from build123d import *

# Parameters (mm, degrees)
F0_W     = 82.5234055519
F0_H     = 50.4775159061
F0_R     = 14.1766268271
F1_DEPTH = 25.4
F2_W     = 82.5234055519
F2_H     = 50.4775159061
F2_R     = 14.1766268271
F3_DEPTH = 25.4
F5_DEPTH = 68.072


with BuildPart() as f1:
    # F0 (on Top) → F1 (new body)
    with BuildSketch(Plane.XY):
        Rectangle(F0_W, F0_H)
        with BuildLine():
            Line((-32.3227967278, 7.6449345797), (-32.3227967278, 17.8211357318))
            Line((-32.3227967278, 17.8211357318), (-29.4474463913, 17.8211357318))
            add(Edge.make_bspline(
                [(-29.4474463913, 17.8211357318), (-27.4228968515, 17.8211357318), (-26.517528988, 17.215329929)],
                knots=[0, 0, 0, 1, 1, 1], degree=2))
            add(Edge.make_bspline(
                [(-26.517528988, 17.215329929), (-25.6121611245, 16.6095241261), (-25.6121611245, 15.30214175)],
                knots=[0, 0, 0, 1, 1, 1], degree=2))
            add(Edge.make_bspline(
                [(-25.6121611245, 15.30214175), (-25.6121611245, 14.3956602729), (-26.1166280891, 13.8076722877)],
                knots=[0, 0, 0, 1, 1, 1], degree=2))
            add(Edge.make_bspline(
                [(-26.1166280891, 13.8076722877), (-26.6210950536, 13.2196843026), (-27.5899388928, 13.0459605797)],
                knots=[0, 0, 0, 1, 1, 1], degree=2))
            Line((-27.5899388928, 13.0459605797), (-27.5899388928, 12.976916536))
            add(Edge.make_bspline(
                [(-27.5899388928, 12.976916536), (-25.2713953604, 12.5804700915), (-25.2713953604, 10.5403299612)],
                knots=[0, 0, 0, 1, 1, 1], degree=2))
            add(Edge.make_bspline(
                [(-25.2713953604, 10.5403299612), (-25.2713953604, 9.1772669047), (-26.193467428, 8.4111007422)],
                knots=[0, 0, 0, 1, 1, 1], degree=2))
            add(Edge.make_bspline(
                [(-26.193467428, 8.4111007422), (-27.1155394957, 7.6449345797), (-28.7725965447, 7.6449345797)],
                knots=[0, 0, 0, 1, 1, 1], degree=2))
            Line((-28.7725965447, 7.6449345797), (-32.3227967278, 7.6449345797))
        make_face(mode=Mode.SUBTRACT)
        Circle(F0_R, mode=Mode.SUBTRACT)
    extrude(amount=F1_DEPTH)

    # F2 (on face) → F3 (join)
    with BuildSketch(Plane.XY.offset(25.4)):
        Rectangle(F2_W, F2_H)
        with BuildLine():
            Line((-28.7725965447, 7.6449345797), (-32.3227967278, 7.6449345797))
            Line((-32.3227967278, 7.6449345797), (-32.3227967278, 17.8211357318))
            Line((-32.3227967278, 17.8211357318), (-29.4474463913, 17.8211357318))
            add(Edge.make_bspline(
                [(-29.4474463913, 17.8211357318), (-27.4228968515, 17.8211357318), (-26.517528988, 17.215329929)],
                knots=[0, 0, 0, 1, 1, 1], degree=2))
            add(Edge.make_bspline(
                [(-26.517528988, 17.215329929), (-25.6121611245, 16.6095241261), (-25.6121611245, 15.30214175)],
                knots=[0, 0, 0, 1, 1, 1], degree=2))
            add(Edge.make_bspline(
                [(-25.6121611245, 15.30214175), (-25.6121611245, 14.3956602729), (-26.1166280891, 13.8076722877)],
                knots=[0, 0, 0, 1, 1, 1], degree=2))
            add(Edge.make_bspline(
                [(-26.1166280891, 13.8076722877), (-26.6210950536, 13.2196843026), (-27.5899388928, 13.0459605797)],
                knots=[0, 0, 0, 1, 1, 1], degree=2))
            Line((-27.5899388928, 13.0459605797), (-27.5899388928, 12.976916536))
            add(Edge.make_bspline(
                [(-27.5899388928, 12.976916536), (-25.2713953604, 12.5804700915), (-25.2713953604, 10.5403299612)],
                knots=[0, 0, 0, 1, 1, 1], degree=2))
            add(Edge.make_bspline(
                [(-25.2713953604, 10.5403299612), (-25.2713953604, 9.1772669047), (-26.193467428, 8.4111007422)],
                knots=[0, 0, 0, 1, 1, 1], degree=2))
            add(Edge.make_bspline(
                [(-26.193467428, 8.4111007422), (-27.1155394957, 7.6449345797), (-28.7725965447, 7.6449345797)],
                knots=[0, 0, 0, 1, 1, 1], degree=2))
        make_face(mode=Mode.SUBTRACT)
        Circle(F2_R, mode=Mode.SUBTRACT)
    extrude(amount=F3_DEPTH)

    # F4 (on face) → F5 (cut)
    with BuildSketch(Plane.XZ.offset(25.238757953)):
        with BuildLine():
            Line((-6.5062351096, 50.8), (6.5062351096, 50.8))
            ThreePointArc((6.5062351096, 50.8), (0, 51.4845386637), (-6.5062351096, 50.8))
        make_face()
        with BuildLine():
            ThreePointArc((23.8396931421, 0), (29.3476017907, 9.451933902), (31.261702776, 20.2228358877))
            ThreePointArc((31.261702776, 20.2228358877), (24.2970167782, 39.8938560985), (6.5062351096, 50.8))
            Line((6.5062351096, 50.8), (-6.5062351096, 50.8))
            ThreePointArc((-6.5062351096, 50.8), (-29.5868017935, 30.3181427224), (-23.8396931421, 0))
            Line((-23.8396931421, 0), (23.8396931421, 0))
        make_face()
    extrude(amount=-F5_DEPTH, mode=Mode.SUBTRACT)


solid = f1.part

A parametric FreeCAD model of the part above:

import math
import FreeCAD as App
import Part
import Sketcher
Q = App.Units.Quantity

doc = App.newDocument("Part")
params = doc.addObject("Spreadsheet::Sheet", "Params")
for row, (alias, value) in enumerate([
    ("pad1_length", "1 in"),
    ("pad2_length", "1 in"),
    ("pocket1_length", "2.68 in"),
], start=1):
    params.set(f"A{row}", alias)
    params.set(f"B{row}", "=" + value)
    params.setAlias(f"B{row}", alias)

body = doc.addObject("PartDesign::Body", "Body")
body.AllowCompound = True

sketch1 = body.newObject("Sketcher::SketchObject", "Sketch")
sketch1.AttachmentSupport = (doc.getObject("XY_Plane"), [""])
sketch1.MapMode = "FlatFace"
sketch1.addGeometry(Part.LineSegment(App.Vector(-41.261703, 25.238758, 0), App.Vector(-41.261703, -25.238758, 0)), False)
sketch1.addGeometry(Part.LineSegment(App.Vector(-41.261703, -25.238758, 0), App.Vector(41.261703, -25.238758, 0)), False)
sketch1.addGeometry(Part.LineSegment(App.Vector(41.261703, -25.238758, 0), App.Vector(41.261703, 25.238758, 0)), False)
sketch1.addGeometry(Part.LineSegment(App.Vector(41.261703, 25.238758, 0), App.Vector(-41.261703, 25.238758, 0)), False)
sketch1.addGeometry(Part.Circle(App.Vector(0, 0, 0), App.Vector(0, 0, 1), 14.176627), False)
sketch1.addGeometry(Part.LineSegment(App.Vector(-28.772597, 7.644935, 0), App.Vector(-32.322797, 7.644935, 0)), False)
sketch1.addGeometry(Part.LineSegment(App.Vector(-32.322797, 7.644935, 0), App.Vector(-32.322797, 17.821136, 0)), False)
sketch1.addGeometry(Part.LineSegment(App.Vector(-32.322797, 17.821136, 0), App.Vector(-29.447446, 17.821136, 0)), False)
sketch1.addGeometry(Part.BSplineCurve([App.Vector(-29.447446, 17.821136, 0), App.Vector(-27.422897, 17.821136, 0), App.Vector(-26.517529, 17.21533, 0)], [3, 3], [0, 1], False, 2, [1, 1, 1], False), False)
sketch1.addGeometry(Part.BSplineCurve([App.Vector(-26.517529, 17.21533, 0), App.Vector(-25.612161, 16.609524, 0), App.Vector(-25.612161, 14.39566, 0), App.Vector(-26.116628, 13.807672, 0)], [3, 1, 3], [0, 1, 1.693356048], False, 2, [1, 1, 1, 1], False), False)
sketch1.addGeometry(Part.BSplineCurve([App.Vector(-26.116628, 13.807672, 0), App.Vector(-26.621095, 13.219684, 0), App.Vector(-27.589939, 13.045961, 0)], [3, 3], [0, 1], False, 2, [1, 1, 1], False), False)
sketch1.addGeometry(Part.LineSegment(App.Vector(-27.589939, 13.045961, 0), App.Vector(-27.589939, 12.976917, 0)), False)
sketch1.addGeometry(Part.BSplineCurve([App.Vector(-27.589939, 12.976917, 0), App.Vector(-25.271395, 12.58047, 0), App.Vector(-25.271395, 9.177267, 0), App.Vector(-26.193467, 8.411101, 0)], [3, 1, 3], [0, 1, 1.668122271], False, 2, [1, 1, 1, 1], False), False)
sketch1.addGeometry(Part.BSplineCurve([App.Vector(-26.193467, 8.411101, 0), App.Vector(-27.115539, 7.644935, 0), App.Vector(-28.772597, 7.644935, 0)], [3, 3], [0, 1], False, 2, [1, 1, 1], False), False)
sketch1.addConstraint(Sketcher.Constraint("Block", 8))
sketch1.addConstraint(Sketcher.Constraint("Block", 9))
sketch1.addConstraint(Sketcher.Constraint("Block", 10))
sketch1.addConstraint(Sketcher.Constraint("Block", 12))
sketch1.addConstraint(Sketcher.Constraint("Block", 13))
sketch1.addConstraint(Sketcher.Constraint("Coincident", 0, 2, 1, 1))
sketch1.addConstraint(Sketcher.Constraint("Coincident", 1, 2, 2, 1))
sketch1.addConstraint(Sketcher.Constraint("Coincident", 2, 2, 3, 1))
sketch1.addConstraint(Sketcher.Constraint("Coincident", 3, 2, 0, 1))
sketch1.addConstraint(Sketcher.Constraint("Coincident", 5, 2, 6, 1))
sketch1.addConstraint(Sketcher.Constraint("Coincident", 6, 2, 7, 1))
sketch1.addConstraint(Sketcher.Constraint("Coincident", 7, 2, 8, 1))
sketch1.addConstraint(Sketcher.Constraint("Coincident", 10, 2, 11, 1))
sketch1.addConstraint(Sketcher.Constraint("Coincident", 11, 2, 12, 1))
sketch1.addConstraint(Sketcher.Constraint("Coincident", 13, 2, 5, 1))
sketch1.addConstraint(Sketcher.Constraint("Vertical", 0))
sketch1.addConstraint(Sketcher.Constraint("Horizontal", 1))
sketch1.addConstraint(Sketcher.Constraint("Vertical", 2))
sketch1.addConstraint(Sketcher.Constraint("Horizontal", 3))
sketch1.addConstraint(Sketcher.Constraint("Horizontal", 5))
sketch1.addConstraint(Sketcher.Constraint("Vertical", 6))
sketch1.addConstraint(Sketcher.Constraint("Horizontal", 7))
sketch1.addConstraint(Sketcher.Constraint("Coincident", 4, 3, -1, 1))
sketch1.addConstraint(Sketcher.Constraint("Symmetric", 0, 2, 2, 2, -1, 1))
sketch1.addConstraint(Sketcher.Constraint("Diameter", 4, Q("28.353254 mm")))
sketch1.addConstraint(Sketcher.Constraint("DistanceX", 5, 2, 5, 1, Q("3.5502 mm")))
sketch1.addConstraint(Sketcher.Constraint("DistanceX", 5, 2, 2, 2, Q("73.5845 mm")))
sketch1.addConstraint(Sketcher.Constraint("DistanceY", 0, 2, 0, 1, Q("50.477516 mm")))
pad1 = body.newObject("PartDesign::Pad", "Pad")
pad1.Profile = sketch1
pad1.setExpression("Length", "Params.pad1_length")

sketch2 = body.newObject("Sketcher::SketchObject", "Sketch001")
sketch2.AttachmentSupport = (doc.getObject("XY_Plane"), [""])
sketch2.MapMode = "FlatFace"
sketch2.AttachmentOffset = App.Placement(App.Vector(0, 0, 1 * 25.4), App.Rotation())
sketch2.addGeometry(Part.LineSegment(App.Vector(-41.261703, 25.238758, 0), App.Vector(-41.261703, -25.238758, 0)), False)
sketch2.addGeometry(Part.LineSegment(App.Vector(-41.261703, -25.238758, 0), App.Vector(41.261703, -25.238758, 0)), False)
sketch2.addGeometry(Part.LineSegment(App.Vector(41.261703, -25.238758, 0), App.Vector(41.261703, 25.238758, 0)), False)
sketch2.addGeometry(Part.LineSegment(App.Vector(41.261703, 25.238758, 0), App.Vector(-41.261703, 25.238758, 0)), False)
sketch2.addGeometry(Part.Circle(App.Vector(0, 0, 0), App.Vector(0, 0, 1), 14.176627), False)
sketch2.addGeometry(Part.BSplineCurve([App.Vector(-26.193467, 8.411101, 0), App.Vector(-27.115539, 7.644935, 0), App.Vector(-28.772597, 7.644935, 0)], [3, 3], [0, 1], False, 2, [1, 1, 1], False), False)
sketch2.addGeometry(Part.LineSegment(App.Vector(-28.772597, 7.644935, 0), App.Vector(-32.322797, 7.644935, 0)), False)
sketch2.addGeometry(Part.LineSegment(App.Vector(-32.322797, 7.644935, 0), App.Vector(-32.322797, 17.821136, 0)), False)
sketch2.addGeometry(Part.LineSegment(App.Vector(-32.322797, 17.821136, 0), App.Vector(-29.447446, 17.821136, 0)), False)
sketch2.addGeometry(Part.BSplineCurve([App.Vector(-29.447446, 17.821136, 0), App.Vector(-27.422897, 17.821136, 0), App.Vector(-26.517529, 17.21533, 0)], [3, 3], [0, 1], False, 2, [1, 1, 1], False), False)
sketch2.addGeometry(Part.BSplineCurve([App.Vector(-26.517529, 17.21533, 0), App.Vector(-25.612161, 16.609524, 0), App.Vector(-25.612161, 14.39566, 0), App.Vector(-26.116628, 13.807672, 0)], [3, 1, 3], [0, 1, 1.693356048], False, 2, [1, 1, 1, 1], False), False)
sketch2.addGeometry(Part.BSplineCurve([App.Vector(-26.116628, 13.807672, 0), App.Vector(-26.621095, 13.219684, 0), App.Vector(-27.589939, 13.045961, 0)], [3, 3], [0, 1], False, 2, [1, 1, 1], False), False)
sketch2.addGeometry(Part.LineSegment(App.Vector(-27.589939, 13.045961, 0), App.Vector(-27.589939, 12.976917, 0)), False)
sketch2.addGeometry(Part.BSplineCurve([App.Vector(-27.589939, 12.976917, 0), App.Vector(-25.271395, 12.58047, 0), App.Vector(-25.271395, 9.177267, 0), App.Vector(-26.193467, 8.411101, 0)], [3, 1, 3], [0, 1, 1.668122271], False, 2, [1, 1, 1, 1], False), False)
sketch2.addConstraint(Sketcher.Constraint("Block", 5))
sketch2.addConstraint(Sketcher.Constraint("Block", 9))
sketch2.addConstraint(Sketcher.Constraint("Block", 10))
sketch2.addConstraint(Sketcher.Constraint("Block", 11))
sketch2.addConstraint(Sketcher.Constraint("Block", 13))
sketch2.addConstraint(Sketcher.Constraint("Coincident", 0, 2, 1, 1))
sketch2.addConstraint(Sketcher.Constraint("Coincident", 1, 2, 2, 1))
sketch2.addConstraint(Sketcher.Constraint("Coincident", 2, 2, 3, 1))
sketch2.addConstraint(Sketcher.Constraint("Coincident", 3, 2, 0, 1))
sketch2.addConstraint(Sketcher.Constraint("Coincident", 5, 2, 6, 1))
sketch2.addConstraint(Sketcher.Constraint("Coincident", 6, 2, 7, 1))
sketch2.addConstraint(Sketcher.Constraint("Coincident", 7, 2, 8, 1))
sketch2.addConstraint(Sketcher.Constraint("Coincident", 8, 2, 9, 1))
sketch2.addConstraint(Sketcher.Constraint("Coincident", 11, 2, 12, 1))
sketch2.addConstraint(Sketcher.Constraint("Coincident", 12, 2, 13, 1))
sketch2.addConstraint(Sketcher.Constraint("Vertical", 0))
sketch2.addConstraint(Sketcher.Constraint("Horizontal", 1))
sketch2.addConstraint(Sketcher.Constraint("Vertical", 2))
sketch2.addConstraint(Sketcher.Constraint("Horizontal", 3))
sketch2.addConstraint(Sketcher.Constraint("Horizontal", 6))
sketch2.addConstraint(Sketcher.Constraint("Vertical", 7))
sketch2.addConstraint(Sketcher.Constraint("Horizontal", 8))
sketch2.addConstraint(Sketcher.Constraint("Coincident", 4, 3, -1, 1))
sketch2.addConstraint(Sketcher.Constraint("Symmetric", 0, 2, 2, 2, -1, 1))
sketch2.addConstraint(Sketcher.Constraint("Diameter", 4, Q("28.353254 mm")))
sketch2.addConstraint(Sketcher.Constraint("DistanceX", 6, 2, 6, 1, Q("3.5502 mm")))
sketch2.addConstraint(Sketcher.Constraint("DistanceX", 6, 2, 2, 2, Q("73.5845 mm")))
sketch2.addConstraint(Sketcher.Constraint("DistanceY", 0, 2, 0, 1, Q("50.477516 mm")))
pad2 = body.newObject("PartDesign::Pad", "Pad001")
pad2.Profile = sketch2
pad2.setExpression("Length", "Params.pad2_length")

sketch3 = body.newObject("Sketcher::SketchObject", "Sketch002")
sketch3.AttachmentSupport = (doc.getObject("XZ_Plane"), [""])
sketch3.MapMode = "FlatFace"
sketch3.AttachmentOffset = App.Placement(App.Vector(0, 0, 25.238758), App.Rotation())
sketch3.addGeometry(Part.ArcOfCircle(Part.Circle(App.Vector(0, 20, 0), App.Vector(0, 0, 1), 31), math.radians(78), math.radians(102)), False)
sketch3.addGeometry(Part.ArcOfCircle(Part.Circle(App.Vector(0, 20, 0), App.Vector(0, 0, 1), 31), math.radians(102), math.radians(220)), False)
sketch3.addGeometry(Part.LineSegment(App.Vector(-24, 0, 0), App.Vector(24, 0, 0)), False)
sketch3.addGeometry(Part.ArcOfCircle(Part.Circle(App.Vector(0, 20, 0), App.Vector(0, 0, 1), 31), math.radians(-40), math.radians(0)), False)
sketch3.addGeometry(Part.ArcOfCircle(Part.Circle(App.Vector(0, 20, 0), App.Vector(0, 0, 1), 31), math.radians(0), math.radians(78)), False)
sketch3.addConstraint(Sketcher.Constraint("Tangent", 0, 2, 1, 1))
sketch3.addConstraint(Sketcher.Constraint("Coincident", 1, 2, 2, 1))
sketch3.addConstraint(Sketcher.Constraint("Coincident", 2, 2, 3, 1))
sketch3.addConstraint(Sketcher.Constraint("Tangent", 3, 2, 4, 1))
sketch3.addConstraint(Sketcher.Constraint("Tangent", 4, 2, 0, 1))
sketch3.addConstraint(Sketcher.Constraint("Horizontal", 2))
sketch3.addConstraint(Sketcher.Constraint("Coincident", 3, 3, 0, 3))
sketch3.addConstraint(Sketcher.Constraint("Equal", 0, 1))
sketch3.addConstraint(Sketcher.Constraint("Symmetric", 1, 2, 2, 2, -1, 1))
sketch3.addConstraint(Sketcher.Constraint("Horizontal", 4, 3, 3, 2))
sketch3.addConstraint(Sketcher.Constraint("Horizontal", 0, 2, 4, 2))
sketch3.addConstraint(Sketcher.Constraint("DistanceY", -1, 1, 0, 2, Q("2 in")))
sketch3.addConstraint(Sketcher.Constraint("Radius", 0, Q("31.261703 mm")))
sketch3.addConstraint(Sketcher.Constraint("DistanceX", 2, 1, 2, 2, Q("47.679386 mm")))
pocket1 = body.newObject("PartDesign::Pocket", "Pocket")
pocket1.Profile = sketch3
pocket1.setExpression("Length", "Params.pocket1_length")

doc.recompute()
